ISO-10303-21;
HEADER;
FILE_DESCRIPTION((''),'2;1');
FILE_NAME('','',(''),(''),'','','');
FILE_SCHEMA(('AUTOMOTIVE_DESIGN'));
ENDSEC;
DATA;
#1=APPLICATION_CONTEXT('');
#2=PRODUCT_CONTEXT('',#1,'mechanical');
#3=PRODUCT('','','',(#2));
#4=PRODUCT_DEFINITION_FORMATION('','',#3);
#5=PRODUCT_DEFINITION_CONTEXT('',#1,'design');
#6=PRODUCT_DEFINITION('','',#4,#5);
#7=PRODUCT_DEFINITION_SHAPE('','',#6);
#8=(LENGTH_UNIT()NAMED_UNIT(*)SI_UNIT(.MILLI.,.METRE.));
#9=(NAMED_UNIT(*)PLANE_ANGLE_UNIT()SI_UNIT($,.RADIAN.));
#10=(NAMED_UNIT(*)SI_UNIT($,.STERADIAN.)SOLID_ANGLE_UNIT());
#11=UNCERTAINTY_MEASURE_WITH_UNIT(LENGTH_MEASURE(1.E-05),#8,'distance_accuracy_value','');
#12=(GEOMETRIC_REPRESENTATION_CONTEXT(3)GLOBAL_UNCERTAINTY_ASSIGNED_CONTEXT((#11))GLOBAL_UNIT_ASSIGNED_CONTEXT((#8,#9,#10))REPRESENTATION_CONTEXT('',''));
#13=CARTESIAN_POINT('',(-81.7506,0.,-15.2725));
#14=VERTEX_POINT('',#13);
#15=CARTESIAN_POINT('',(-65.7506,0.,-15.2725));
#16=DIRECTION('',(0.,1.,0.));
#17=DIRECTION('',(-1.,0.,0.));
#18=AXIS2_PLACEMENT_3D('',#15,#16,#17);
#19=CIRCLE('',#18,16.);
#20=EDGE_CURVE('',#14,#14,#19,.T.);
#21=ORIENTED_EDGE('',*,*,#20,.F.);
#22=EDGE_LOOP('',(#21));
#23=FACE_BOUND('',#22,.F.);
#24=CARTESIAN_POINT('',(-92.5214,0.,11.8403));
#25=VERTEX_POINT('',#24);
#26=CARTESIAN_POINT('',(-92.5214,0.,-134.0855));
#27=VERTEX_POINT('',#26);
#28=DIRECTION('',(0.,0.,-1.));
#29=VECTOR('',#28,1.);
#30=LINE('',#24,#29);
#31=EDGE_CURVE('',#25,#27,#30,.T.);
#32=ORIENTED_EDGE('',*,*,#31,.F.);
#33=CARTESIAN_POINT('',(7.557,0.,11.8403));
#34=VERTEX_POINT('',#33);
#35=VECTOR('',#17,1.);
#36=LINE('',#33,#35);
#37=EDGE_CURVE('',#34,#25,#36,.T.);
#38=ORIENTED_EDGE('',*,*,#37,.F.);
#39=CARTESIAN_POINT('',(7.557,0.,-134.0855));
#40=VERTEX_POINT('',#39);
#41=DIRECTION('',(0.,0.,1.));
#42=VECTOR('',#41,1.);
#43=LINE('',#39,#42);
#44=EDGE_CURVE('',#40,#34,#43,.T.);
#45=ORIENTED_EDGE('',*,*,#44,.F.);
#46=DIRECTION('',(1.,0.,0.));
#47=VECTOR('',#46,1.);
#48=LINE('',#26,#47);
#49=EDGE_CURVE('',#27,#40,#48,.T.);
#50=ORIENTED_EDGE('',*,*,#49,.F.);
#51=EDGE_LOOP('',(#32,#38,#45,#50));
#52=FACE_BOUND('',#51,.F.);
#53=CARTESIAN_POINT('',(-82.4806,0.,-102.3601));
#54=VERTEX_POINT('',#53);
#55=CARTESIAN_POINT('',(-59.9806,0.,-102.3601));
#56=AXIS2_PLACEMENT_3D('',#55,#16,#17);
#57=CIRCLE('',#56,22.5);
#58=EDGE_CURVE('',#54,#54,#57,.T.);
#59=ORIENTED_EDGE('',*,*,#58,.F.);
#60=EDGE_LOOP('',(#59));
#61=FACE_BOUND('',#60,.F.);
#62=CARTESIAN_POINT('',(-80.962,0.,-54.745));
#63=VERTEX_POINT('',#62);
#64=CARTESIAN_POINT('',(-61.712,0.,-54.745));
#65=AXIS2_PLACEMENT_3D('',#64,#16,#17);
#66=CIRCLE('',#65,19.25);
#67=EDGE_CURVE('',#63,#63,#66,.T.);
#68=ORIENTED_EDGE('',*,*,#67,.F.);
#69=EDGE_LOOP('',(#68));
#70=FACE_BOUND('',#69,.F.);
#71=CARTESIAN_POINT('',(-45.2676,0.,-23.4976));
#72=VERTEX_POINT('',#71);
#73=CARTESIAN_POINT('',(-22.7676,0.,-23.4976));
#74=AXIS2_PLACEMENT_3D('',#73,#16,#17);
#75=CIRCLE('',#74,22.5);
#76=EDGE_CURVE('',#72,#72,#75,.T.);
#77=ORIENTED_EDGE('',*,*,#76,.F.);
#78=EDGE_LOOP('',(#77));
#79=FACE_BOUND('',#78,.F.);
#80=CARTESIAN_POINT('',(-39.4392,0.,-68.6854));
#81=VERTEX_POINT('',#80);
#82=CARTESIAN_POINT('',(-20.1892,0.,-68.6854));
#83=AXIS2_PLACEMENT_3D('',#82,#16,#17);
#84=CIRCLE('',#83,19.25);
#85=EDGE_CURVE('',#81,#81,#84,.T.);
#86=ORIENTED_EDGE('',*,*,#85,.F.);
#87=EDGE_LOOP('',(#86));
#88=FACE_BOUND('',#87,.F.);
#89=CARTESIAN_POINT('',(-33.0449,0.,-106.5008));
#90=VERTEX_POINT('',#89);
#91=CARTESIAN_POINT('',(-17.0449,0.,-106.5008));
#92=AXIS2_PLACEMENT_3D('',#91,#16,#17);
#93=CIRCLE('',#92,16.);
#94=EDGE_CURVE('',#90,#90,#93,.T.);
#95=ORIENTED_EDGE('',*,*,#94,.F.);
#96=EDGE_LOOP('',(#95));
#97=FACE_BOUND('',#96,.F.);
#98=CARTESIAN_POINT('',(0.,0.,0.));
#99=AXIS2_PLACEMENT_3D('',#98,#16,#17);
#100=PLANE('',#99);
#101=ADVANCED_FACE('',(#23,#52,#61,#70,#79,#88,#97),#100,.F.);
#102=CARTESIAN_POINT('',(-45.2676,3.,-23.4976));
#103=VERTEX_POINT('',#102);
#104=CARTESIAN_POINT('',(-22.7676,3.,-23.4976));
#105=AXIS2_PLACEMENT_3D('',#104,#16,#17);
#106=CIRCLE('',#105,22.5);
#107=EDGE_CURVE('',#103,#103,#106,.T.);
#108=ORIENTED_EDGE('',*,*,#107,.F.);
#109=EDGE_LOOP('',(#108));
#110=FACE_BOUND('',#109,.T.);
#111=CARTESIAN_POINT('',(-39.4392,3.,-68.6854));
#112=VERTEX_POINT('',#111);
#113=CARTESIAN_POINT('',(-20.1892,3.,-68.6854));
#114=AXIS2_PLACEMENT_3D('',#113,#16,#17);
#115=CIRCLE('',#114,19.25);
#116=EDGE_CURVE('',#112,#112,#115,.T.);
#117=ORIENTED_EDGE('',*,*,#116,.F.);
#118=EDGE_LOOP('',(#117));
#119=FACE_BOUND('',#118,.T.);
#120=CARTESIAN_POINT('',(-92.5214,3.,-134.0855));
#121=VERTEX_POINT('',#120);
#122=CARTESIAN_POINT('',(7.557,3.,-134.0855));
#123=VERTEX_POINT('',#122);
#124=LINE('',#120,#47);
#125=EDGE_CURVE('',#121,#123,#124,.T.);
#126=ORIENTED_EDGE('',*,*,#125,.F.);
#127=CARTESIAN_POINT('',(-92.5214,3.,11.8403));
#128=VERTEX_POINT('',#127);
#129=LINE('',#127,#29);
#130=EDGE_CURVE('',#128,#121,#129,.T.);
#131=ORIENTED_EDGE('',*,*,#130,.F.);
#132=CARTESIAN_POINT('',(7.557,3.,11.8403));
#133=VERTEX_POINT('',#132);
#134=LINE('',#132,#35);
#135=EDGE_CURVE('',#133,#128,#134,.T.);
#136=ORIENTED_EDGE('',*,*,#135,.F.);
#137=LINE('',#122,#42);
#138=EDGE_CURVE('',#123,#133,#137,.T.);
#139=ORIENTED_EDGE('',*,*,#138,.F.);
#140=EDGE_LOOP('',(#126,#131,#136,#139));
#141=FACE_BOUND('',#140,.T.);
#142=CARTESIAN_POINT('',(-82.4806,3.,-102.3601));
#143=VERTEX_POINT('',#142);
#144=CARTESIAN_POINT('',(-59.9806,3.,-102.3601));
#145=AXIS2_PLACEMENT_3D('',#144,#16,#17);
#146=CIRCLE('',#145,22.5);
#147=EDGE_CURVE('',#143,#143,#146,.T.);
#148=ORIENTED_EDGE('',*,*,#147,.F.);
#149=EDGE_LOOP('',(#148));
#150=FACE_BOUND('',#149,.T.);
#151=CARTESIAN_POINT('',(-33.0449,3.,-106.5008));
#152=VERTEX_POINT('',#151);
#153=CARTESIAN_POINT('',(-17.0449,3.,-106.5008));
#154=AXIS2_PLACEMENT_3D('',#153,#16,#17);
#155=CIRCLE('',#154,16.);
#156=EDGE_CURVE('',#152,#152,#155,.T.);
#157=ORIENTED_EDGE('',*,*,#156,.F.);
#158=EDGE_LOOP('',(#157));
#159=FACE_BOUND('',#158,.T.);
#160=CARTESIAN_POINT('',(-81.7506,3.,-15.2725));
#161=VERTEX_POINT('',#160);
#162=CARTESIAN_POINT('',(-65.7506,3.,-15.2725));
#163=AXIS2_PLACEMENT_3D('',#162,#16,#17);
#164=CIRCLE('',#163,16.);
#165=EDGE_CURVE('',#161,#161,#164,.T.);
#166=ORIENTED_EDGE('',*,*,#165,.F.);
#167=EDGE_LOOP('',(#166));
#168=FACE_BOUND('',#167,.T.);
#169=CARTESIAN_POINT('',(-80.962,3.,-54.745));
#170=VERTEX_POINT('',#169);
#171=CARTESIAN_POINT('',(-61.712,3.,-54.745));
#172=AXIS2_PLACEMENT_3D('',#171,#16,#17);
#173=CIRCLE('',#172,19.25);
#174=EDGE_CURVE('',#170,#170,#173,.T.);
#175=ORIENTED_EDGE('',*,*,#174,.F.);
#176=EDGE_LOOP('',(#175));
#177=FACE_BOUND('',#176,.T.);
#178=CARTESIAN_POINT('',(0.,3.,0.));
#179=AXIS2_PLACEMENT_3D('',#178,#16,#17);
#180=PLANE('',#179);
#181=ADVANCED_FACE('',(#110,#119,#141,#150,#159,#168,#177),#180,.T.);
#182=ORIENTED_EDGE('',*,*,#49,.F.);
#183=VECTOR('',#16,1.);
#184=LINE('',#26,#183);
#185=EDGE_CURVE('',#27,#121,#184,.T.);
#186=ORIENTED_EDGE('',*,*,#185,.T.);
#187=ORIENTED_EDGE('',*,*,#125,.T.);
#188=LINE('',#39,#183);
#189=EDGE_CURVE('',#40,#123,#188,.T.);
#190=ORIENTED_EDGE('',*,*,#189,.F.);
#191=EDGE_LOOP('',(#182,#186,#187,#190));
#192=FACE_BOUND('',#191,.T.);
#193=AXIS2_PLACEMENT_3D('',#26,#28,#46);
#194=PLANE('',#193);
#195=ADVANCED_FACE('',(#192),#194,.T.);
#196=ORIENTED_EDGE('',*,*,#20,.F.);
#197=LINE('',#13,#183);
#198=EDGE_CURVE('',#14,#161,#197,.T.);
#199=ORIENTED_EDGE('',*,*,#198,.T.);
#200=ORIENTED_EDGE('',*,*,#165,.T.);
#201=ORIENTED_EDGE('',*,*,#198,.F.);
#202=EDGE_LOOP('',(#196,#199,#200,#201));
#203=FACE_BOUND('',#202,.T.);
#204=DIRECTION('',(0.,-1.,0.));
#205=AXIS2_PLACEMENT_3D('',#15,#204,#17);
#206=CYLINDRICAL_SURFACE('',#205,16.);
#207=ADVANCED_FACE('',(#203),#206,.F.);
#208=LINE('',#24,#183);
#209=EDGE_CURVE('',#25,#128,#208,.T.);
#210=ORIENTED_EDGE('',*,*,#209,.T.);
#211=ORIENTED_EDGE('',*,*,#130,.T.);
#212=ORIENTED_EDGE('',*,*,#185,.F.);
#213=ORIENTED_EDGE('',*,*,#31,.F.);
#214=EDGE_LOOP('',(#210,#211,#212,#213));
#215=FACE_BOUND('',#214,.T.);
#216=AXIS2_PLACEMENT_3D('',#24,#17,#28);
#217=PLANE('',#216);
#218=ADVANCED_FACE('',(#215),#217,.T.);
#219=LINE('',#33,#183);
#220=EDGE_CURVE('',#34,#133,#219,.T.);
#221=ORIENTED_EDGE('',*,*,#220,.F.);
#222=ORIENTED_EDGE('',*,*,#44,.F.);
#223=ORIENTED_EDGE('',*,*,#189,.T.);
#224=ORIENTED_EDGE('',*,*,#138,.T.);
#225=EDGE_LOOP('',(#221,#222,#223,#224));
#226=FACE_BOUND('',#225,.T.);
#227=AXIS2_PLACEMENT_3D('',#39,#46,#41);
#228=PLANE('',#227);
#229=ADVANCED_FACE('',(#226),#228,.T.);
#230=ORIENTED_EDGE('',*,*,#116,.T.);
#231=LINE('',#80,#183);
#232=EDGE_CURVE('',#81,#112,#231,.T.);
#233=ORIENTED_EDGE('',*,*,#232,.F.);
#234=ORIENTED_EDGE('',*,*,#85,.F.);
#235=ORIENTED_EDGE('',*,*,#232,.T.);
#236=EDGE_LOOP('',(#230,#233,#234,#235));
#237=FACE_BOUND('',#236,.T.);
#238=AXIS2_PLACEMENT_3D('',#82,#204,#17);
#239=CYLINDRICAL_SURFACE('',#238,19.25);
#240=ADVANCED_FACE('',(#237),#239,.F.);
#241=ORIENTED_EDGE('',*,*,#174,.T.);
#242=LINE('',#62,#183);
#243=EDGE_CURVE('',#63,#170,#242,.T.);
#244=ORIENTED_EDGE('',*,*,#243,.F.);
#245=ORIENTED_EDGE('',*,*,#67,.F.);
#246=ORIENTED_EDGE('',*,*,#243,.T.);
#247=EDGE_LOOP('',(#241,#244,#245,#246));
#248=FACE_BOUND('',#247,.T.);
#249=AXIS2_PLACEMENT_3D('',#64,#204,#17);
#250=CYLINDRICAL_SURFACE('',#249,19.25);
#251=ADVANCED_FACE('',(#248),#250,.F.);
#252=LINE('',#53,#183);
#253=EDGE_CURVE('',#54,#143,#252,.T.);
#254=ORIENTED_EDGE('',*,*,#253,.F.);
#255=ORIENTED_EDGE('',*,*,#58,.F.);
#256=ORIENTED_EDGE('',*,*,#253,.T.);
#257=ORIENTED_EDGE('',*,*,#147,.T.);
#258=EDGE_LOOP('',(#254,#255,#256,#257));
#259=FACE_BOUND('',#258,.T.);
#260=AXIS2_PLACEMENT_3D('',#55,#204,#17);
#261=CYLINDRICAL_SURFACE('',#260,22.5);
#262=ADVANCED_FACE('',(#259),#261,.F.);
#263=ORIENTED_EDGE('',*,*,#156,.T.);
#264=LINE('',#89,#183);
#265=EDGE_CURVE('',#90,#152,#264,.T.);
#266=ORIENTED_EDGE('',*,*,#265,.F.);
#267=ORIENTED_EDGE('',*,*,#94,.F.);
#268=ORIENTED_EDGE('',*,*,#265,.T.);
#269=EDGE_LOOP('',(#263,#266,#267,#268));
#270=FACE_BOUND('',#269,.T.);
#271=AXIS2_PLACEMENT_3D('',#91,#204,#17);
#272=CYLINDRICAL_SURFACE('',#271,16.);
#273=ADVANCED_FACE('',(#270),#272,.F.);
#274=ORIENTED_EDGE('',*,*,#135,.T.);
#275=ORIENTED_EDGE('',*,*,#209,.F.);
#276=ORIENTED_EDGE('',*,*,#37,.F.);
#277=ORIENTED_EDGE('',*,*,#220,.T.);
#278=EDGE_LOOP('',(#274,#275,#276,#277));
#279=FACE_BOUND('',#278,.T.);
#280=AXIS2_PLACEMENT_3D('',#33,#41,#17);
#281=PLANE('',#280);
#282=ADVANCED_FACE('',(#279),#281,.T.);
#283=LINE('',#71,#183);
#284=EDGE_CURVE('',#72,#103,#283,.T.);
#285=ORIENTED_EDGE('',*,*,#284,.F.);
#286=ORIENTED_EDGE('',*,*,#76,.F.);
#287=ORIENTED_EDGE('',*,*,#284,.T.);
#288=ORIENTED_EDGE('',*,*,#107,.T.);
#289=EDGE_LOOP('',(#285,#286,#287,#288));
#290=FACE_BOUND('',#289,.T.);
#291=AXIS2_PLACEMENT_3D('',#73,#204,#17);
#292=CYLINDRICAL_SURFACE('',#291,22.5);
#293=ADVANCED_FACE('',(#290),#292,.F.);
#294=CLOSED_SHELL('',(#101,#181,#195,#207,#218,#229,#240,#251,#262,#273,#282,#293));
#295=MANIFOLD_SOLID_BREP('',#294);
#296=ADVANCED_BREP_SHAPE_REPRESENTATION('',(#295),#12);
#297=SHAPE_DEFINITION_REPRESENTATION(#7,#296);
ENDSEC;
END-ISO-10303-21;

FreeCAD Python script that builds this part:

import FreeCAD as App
import Part
import Sketcher
Q = App.Units.Quantity


def add_polygon(sketch, points):
    """Adds a closed chain of lines whose ends are joined by coincident constraints."""
    first, n = sketch.GeometryCount, len(points)
    for a, b in zip(points, points[1:] + points[:1]):
        sketch.addGeometry(Part.LineSegment(App.Vector(*a, 0), App.Vector(*b, 0)), False)
    for i in range(n):
        sketch.addConstraint(Sketcher.Constraint("Coincident", first + i, 2, first + (i + 1) % n, 1))

doc = App.newDocument("Part")
body = doc.addObject("PartDesign::Body", "Body")

# Sketch on XZ plane
sketch1 = body.newObject("Sketcher::SketchObject", "Sketch")
sketch1.AttachmentSupport = (doc.getObject("XZ_Plane"), [""])
sketch1.MapMode = "FlatFace"
add_polygon(sketch1, [(-92.5214, 11.8403), (7.557, 11.8403), (7.557, -134.0855), (-92.5214, -134.0855)])  # lines 0-3
sketch1.addGeometry(Part.Circle(App.Vector(-17.0449, -106.5008, 0), App.Vector(0, 0, 1), 16), False)  # 4
sketch1.addGeometry(Part.Circle(App.Vector(-20.1892, -68.6854, 0), App.Vector(0, 0, 1), 19.25), False)  # 5
sketch1.addGeometry(Part.Circle(App.Vector(-59.9806, -102.3601, 0), App.Vector(0, 0, 1), 22.5), False)  # 6
sketch1.addGeometry(Part.Circle(App.Vector(-22.7676, -23.4976, 0), App.Vector(0, 0, 1), 22.5), False)  # 7
sketch1.addGeometry(Part.Circle(App.Vector(-61.712, -54.745, 0), App.Vector(0, 0, 1), 19.25), False)  # 8
sketch1.addGeometry(Part.Circle(App.Vector(-65.7506, -15.2725, 0), App.Vector(0, 0, 1), 16), False)  # 9
sketch1.addConstraint([
    Sketcher.Constraint("Horizontal", 0),
    Sketcher.Constraint("Vertical", 1),
    Sketcher.Constraint("Horizontal", 2),
    Sketcher.Constraint("Vertical", 3),
    Sketcher.Constraint("Equal", 6, 7),
    Sketcher.Constraint("Equal", 5, 8),
    Sketcher.Constraint("Equal", 4, 9),
    Sketcher.Constraint("Diameter", 4, Q("32 mm")),
    Sketcher.Constraint("Diameter", 6, Q("45 mm")),
    Sketcher.Constraint("Diameter", 5, Q("38.5 mm")),
    Sketcher.Constraint("DistanceY", 1, 2, 5, 3, Q("65.4 mm")),
    Sketcher.Constraint("DistanceY", 6, 3, -1, 1, Q("102.36 mm")),
    Sketcher.Constraint("DistanceX", 9, 3, 6, 3, Q("5.77 mm")),
    Sketcher.Constraint("DistanceX", 0, 1, 0, 2, Q("100.0784 mm")),
    Sketcher.Constraint("DistanceY", 1, 2, 1, 1, Q("145.9258 mm")),
    Sketcher.Constraint("DistanceX", 4, 3, -1, 1, Q("17.045 mm")),
    Sketcher.Constraint("DistanceX", 8, 3, -1, 1, Q("61.712 mm")),
    Sketcher.Constraint("DistanceY", 8, 3, -1, 1, Q("54.745 mm")),
    Sketcher.Constraint("DistanceX", -1, 1, 0, 2, Q("7.557 mm")),
    Sketcher.Constraint("DistanceX", 6, 3, 7, 3, Q("37.213 mm")),
    Sketcher.Constraint("DistanceY", 7, 3, 9, 3, Q("8.225 mm")),
    Sketcher.Constraint("DistanceY", 5, 3, 9, 3, Q("53.413 mm")),
    Sketcher.Constraint("DistanceY", 4, 3, 0, 2, Q("118.341 mm")),
    Sketcher.Constraint("DistanceY", 4, 3, -1, 1, Q("106.5008 mm")),
    Sketcher.Constraint("DistanceX", 5, 3, -1, 1, Q("20.1892 mm")),
    Sketcher.Constraint("DistanceX", 6, 3, -1, 1, Q("59.9806 mm")),
])
pad1 = body.newObject("PartDesign::Pad", "Pad")
pad1.Profile = sketch1
pad1.Length = 3
pad1.Reversed = True

doc.recompute()
